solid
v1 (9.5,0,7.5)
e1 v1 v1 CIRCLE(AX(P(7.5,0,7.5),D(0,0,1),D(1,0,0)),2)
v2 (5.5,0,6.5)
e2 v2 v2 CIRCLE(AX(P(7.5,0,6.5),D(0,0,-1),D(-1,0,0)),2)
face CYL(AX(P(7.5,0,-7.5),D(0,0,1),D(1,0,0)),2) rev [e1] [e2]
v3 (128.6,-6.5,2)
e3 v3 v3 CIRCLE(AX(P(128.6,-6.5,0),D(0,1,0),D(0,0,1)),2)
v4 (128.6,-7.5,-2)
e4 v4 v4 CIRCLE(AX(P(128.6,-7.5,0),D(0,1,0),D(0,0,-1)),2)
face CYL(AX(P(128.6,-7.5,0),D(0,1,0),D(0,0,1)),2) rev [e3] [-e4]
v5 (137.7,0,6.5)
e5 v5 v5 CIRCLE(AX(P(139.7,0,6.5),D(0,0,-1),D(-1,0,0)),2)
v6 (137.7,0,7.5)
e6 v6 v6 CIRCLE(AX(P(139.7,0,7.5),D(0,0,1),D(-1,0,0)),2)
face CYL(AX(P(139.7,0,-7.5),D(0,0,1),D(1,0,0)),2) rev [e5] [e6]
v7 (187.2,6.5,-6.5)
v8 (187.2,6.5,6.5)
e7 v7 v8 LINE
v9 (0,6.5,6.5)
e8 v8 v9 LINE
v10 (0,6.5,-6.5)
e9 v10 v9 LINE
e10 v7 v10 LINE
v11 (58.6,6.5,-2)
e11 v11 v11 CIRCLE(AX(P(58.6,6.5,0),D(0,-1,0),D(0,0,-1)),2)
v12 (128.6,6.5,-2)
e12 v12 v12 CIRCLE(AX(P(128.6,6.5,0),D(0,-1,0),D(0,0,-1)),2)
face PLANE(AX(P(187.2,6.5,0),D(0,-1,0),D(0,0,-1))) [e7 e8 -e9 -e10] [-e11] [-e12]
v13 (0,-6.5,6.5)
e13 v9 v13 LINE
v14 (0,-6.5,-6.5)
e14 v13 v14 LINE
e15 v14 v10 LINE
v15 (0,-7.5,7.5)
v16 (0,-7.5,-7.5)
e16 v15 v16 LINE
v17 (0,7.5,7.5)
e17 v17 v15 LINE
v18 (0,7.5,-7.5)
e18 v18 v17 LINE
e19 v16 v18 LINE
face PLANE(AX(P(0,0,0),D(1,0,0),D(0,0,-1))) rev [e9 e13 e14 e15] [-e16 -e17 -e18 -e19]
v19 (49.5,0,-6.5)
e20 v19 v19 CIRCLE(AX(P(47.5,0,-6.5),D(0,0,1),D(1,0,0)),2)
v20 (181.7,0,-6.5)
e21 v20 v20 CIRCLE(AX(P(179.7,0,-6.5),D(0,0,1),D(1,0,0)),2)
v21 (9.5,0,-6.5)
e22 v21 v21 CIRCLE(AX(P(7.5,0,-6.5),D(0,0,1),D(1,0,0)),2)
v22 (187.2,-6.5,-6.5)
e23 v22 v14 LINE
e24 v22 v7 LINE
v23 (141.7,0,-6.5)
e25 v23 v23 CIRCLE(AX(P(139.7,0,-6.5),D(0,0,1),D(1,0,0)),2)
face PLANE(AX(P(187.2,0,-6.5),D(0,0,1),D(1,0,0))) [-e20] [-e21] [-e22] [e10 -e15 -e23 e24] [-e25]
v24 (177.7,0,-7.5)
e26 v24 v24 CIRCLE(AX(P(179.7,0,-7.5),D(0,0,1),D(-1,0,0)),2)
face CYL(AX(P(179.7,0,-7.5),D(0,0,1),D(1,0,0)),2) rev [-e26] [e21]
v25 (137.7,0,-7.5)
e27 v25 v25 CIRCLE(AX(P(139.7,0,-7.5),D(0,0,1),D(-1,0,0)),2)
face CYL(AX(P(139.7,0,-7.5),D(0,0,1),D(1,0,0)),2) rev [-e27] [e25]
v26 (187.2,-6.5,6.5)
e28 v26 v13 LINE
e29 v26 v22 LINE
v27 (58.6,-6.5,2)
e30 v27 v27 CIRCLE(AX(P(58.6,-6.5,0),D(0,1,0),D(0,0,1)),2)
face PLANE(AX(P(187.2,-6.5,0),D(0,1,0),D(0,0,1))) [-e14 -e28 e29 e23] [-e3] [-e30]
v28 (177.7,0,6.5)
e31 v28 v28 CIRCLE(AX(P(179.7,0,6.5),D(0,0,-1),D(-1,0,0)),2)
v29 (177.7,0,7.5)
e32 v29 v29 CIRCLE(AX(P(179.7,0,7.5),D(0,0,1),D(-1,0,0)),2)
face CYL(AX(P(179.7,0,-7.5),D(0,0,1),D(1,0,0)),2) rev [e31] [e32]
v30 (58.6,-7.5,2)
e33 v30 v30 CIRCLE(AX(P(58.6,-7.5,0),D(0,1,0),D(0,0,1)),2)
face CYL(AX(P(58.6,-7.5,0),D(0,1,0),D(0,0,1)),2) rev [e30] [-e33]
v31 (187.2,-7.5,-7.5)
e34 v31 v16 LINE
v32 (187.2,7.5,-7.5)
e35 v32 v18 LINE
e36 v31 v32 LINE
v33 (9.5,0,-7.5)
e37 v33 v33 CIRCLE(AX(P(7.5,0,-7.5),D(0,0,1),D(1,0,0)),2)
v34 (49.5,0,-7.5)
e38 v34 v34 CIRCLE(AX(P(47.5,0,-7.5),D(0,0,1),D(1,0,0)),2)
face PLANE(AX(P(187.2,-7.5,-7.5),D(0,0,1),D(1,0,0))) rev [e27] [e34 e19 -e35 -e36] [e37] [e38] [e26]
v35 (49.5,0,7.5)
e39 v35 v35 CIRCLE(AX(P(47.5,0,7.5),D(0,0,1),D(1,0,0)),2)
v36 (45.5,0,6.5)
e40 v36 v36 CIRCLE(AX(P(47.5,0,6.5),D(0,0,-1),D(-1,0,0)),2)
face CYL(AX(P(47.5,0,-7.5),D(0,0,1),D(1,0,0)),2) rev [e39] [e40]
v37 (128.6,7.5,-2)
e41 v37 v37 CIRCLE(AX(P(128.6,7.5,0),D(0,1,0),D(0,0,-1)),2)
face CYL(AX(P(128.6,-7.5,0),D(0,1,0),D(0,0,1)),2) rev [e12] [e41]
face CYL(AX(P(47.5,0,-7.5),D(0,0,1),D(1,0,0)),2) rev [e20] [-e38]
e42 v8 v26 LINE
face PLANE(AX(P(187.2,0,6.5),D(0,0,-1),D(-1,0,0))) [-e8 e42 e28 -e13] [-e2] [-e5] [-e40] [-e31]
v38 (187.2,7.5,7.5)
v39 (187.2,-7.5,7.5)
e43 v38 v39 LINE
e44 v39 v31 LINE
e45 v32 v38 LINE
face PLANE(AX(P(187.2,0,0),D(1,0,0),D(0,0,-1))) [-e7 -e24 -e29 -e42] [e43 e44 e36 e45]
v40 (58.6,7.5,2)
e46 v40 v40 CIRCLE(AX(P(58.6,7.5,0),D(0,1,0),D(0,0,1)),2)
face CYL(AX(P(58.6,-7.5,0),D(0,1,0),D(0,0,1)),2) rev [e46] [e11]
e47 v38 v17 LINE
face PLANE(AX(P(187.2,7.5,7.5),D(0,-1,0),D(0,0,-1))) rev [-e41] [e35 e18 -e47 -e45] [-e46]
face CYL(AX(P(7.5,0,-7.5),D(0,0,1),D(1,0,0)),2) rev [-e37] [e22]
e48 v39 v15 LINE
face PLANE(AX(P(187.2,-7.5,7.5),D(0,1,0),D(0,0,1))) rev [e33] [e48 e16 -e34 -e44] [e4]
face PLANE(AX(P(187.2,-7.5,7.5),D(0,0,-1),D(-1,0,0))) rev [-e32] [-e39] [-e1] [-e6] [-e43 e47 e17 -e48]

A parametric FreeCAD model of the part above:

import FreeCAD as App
import Part
import Sketcher
from FreeCAD import Vector

doc = App.newDocument("Part")
body = doc.addObject("PartDesign::Body", "Body")

sketch1 = body.newObject("Sketcher::SketchObject", "Sketch")
sketch1.AttachmentSupport = (doc.getObject("YZ_Plane"), [""])
sketch1.MapMode = "FlatFace"
sketch1.addGeometry(Part.LineSegment(Vector(7.5, 7.5, 0), Vector(-7.5, 7.5, 0)), False)
sketch1.addGeometry(Part.LineSegment(Vector(-7.5, 7.5, 0), Vector(-7.5, -7.5, 0)), False)
sketch1.addGeometry(Part.LineSegment(Vector(-7.5, -7.5, 0), Vector(7.5, -7.5, 0)), False)
sketch1.addGeometry(Part.LineSegment(Vector(7.5, -7.5, 0), Vector(7.5, 7.5, 0)), False)
sketch1.addGeometry(Part.LineSegment(Vector(-6.5, -6.5, 0), Vector(-6.5, 6.5, 0)), False)
sketch1.addGeometry(Part.LineSegment(Vector(-6.5, 6.5, 0), Vector(6.5, 6.5, 0)), False)
sketch1.addGeometry(Part.LineSegment(Vector(6.5, 6.5, 0), Vector(6.5, -6.5, 0)), False)
sketch1.addGeometry(Part.LineSegment(Vector(6.5, -6.5, 0), Vector(-6.5, -6.5, 0)), False)
sketch1.addConstraint(Sketcher.Constraint("Coincident", 0, 2, 1, 1))
sketch1.addConstraint(Sketcher.Constraint("Coincident", 1, 2, 2, 1))
sketch1.addConstraint(Sketcher.Constraint("Coincident", 2, 2, 3, 1))
sketch1.addConstraint(Sketcher.Constraint("Coincident", 3, 2, 0, 1))
sketch1.addConstraint(Sketcher.Constraint("Coincident", 4, 2, 5, 1))
sketch1.addConstraint(Sketcher.Constraint("Coincident", 5, 2, 6, 1))
sketch1.addConstraint(Sketcher.Constraint("Coincident", 6, 2, 7, 1))
sketch1.addConstraint(Sketcher.Constraint("Coincident", 7, 2, 4, 1))
sketch1.addConstraint(Sketcher.Constraint("Horizontal", 0))
sketch1.addConstraint(Sketcher.Constraint("Vertical", 1))
sketch1.addConstraint(Sketcher.Constraint("Horizontal", 2))
sketch1.addConstraint(Sketcher.Constraint("Vertical", 3))
sketch1.addConstraint(Sketcher.Constraint("Vertical", 4))
sketch1.addConstraint(Sketcher.Constraint("Horizontal", 5))
sketch1.addConstraint(Sketcher.Constraint("Vertical", 6))
sketch1.addConstraint(Sketcher.Constraint("Horizontal", 7))
sketch1.addConstraint(Sketcher.Constraint("Symmetric", 0, 2, 2, 2, -1, 1))
sketch1.addConstraint(Sketcher.Constraint("Symmetric", 4, 2, 6, 2, -1, 1))
sketch1.addConstraint(Sketcher.Constraint("Equal", 2, 1))
sketch1.addConstraint(Sketcher.Constraint("Equal", 7, 4))
sketch1.addConstraint(Sketcher.Constraint("DistanceX", 0, 2, 0, 1, 15.0))
sketch1.addConstraint(Sketcher.Constraint("DistanceX", 5, 1, 5, 2, 13.0))
pad1 = body.newObject("PartDesign::Pad", "Pad")
pad1.Profile = sketch1
pad1.Length = 187.2

sketch2 = body.newObject("Sketcher::SketchObject", "Sketch001")
sketch2.AttachmentSupport = (doc.getObject("XY_Plane"), [""])
sketch2.MapMode = "FlatFace"
sketch2.AttachmentOffset = App.Placement(Vector(0, 0, 7.5), App.Rotation())
sketch2.addGeometry(Part.Circle(Vector(7.5, 0, 0), Vector(0, 0, 1), 2), False)
sketch2.addGeometry(Part.Circle(Vector(47.5, 0, 0), Vector(0, 0, 1), 2), False)
sketch2.addGeometry(Part.Circle(Vector(139.7, 0, 0), Vector(0, 0, 1), 2), False)
sketch2.addGeometry(Part.Circle(Vector(179.7, 0, 0), Vector(0, 0, 1), 2), False)
sketch2.addConstraint(Sketcher.Constraint("Equal", 0, 1))
sketch2.addConstraint(Sketcher.Constraint("Equal", 1, 2))
sketch2.addConstraint(Sketcher.Constraint("Equal", 2, 3))
sketch2.addConstraint(Sketcher.Constraint("PointOnObject", 0, 3, -1))
sketch2.addConstraint(Sketcher.Constraint("PointOnObject", 1, 3, -1))
sketch2.addConstraint(Sketcher.Constraint("PointOnObject", 2, 3, -1))
sketch2.addConstraint(Sketcher.Constraint("PointOnObject", 3, 3, -1))
sketch2.addConstraint(Sketcher.Constraint("Diameter", 0, 4.0))
sketch2.addConstraint(Sketcher.Constraint("DistanceX", 0, 3, 1, 3, 40.0))
sketch2.addConstraint(Sketcher.Constraint("DistanceX", 2, 3, 3, 3, 40.0))
sketch2.addConstraint(Sketcher.Constraint("DistanceX", -1, 1, 0, 3, 7.5))
sketch2.addConstraint(Sketcher.Constraint("DistanceX", -1, 1, 2, 3, 139.7))
pocket1 = body.newObject("PartDesign::Pocket", "Pocket")
pocket1.Profile = sketch2
pocket1.Type = "ThroughAll"

sketch3 = body.newObject("Sketcher::SketchObject", "Sketch002")
sketch3.AttachmentSupport = (doc.getObject("XZ_Plane"), [""])
sketch3.MapMode = "FlatFace"
sketch3.AttachmentOffset = App.Placement(Vector(0, 0, -7.5), App.Rotation())
sketch3.addGeometry(Part.Circle(Vector(58.6, 0, 0), Vector(0, 0, 1), 2), False)
sketch3.addGeometry(Part.Circle(Vector(128.6, 0, 0), Vector(0, 0, 1), 2), False)
sketch3.addConstraint(Sketcher.Constraint("Equal", 0, 1))
sketch3.addConstraint(Sketcher.Constraint("PointOnObject", 0, 3, -1))
sketch3.addConstraint(Sketcher.Constraint("PointOnObject", 1, 3, -1))
sketch3.addConstraint(Sketcher.Constraint("Diameter", 0, 4.0))
sketch3.addConstraint(Sketcher.Constraint("DistanceX", 0, 3, 1, 3, 70.0))
sketch3.addConstraint(Sketcher.Constraint("DistanceX", -1, 1, 0, 3, 58.6))
pocket2 = body.newObject("PartDesign::Pocket", "Pocket001")
pocket2.Profile = sketch3
pocket2.Type = "ThroughAll"
pocket2.Reversed = True

doc.recompute()
